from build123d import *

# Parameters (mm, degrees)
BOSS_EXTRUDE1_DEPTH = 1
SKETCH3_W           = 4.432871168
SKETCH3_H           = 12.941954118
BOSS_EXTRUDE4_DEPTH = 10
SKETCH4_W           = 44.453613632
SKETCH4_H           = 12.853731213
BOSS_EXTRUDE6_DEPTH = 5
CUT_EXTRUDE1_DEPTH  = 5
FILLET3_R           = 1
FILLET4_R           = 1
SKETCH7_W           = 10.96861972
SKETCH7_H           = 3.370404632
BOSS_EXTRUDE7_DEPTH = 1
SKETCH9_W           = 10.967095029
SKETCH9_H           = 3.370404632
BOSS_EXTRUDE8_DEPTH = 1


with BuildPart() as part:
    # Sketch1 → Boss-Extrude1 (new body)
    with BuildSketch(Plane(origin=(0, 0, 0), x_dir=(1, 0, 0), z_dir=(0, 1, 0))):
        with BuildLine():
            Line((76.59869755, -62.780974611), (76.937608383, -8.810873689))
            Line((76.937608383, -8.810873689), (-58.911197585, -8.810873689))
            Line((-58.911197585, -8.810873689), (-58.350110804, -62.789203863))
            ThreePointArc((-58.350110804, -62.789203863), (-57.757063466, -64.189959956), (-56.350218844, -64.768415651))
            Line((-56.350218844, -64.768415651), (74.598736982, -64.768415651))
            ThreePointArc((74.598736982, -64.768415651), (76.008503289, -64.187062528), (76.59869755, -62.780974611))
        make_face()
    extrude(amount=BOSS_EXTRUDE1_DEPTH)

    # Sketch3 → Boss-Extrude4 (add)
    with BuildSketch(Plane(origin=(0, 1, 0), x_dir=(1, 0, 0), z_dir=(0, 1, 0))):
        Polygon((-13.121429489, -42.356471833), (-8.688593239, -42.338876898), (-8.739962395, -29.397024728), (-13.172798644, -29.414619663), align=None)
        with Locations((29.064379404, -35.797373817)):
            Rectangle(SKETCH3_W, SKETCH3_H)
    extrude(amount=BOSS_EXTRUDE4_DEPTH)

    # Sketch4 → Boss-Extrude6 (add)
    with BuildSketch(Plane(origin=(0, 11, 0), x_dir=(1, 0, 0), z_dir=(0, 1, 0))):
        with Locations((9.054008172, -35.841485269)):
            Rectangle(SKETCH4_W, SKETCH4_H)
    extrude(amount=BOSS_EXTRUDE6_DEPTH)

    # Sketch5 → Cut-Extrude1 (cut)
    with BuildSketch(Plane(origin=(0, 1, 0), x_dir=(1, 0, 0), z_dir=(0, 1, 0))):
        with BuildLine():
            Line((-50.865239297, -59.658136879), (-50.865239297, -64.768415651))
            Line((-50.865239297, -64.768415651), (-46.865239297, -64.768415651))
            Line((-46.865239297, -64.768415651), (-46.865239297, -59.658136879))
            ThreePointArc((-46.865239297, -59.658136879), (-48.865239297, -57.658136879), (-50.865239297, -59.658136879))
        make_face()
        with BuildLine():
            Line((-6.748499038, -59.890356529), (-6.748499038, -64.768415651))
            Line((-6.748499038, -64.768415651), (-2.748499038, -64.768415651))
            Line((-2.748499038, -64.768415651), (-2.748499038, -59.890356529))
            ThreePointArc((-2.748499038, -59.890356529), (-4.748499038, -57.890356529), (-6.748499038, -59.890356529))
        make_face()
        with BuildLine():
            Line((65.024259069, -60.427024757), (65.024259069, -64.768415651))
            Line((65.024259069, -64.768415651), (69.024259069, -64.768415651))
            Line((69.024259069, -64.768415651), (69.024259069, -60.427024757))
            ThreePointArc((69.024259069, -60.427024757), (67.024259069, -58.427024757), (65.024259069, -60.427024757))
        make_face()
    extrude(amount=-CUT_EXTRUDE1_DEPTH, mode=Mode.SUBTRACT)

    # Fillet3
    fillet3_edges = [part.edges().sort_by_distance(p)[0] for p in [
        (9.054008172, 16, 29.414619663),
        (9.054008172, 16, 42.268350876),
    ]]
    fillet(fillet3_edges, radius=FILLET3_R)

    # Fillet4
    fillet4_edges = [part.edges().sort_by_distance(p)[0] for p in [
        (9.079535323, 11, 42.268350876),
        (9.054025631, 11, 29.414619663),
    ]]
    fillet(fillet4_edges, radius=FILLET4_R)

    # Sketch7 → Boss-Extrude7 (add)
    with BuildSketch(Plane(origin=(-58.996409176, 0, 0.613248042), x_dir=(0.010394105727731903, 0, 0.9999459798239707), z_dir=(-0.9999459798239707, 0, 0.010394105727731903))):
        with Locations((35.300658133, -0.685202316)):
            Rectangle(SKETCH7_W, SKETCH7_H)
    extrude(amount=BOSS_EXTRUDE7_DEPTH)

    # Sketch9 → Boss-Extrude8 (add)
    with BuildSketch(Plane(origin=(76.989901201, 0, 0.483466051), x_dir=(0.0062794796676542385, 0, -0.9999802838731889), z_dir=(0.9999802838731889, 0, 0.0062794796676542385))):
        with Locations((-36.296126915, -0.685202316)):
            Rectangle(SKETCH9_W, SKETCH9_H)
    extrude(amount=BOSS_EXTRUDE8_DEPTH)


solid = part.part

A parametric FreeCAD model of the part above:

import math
import FreeCAD as App
import Part
import Sketcher

V = App.Vector
Q = App.Units.Quantity


def edges_at(feature, points):
    """Names of the edges that pass closest to the given points."""
    edges = feature.Shape.Edges
    near = lambda p: min(range(len(edges)), key=lambda i: edges[i].distToShape(Part.Vertex(*p))[0])
    return sorted({f"Edge{near(p) + 1}" for p in points})

doc = App.newDocument("Part")
body = doc.addObject("PartDesign::Body", "Body")

# Sketch on XZ plane
sketch1 = body.newObject("Sketcher::SketchObject", "Sketch")
sketch1.AttachmentSupport = (doc.getObject("XZ_Plane"), [""])
sketch1.MapMode = "FlatFace"
sketch1.addGeometry(Part.LineSegment(V(76.6, 62.8, 0), V(76.9, 8.8, 0)), False)
sketch1.addGeometry(Part.LineSegment(V(76.9, 8.8, 0), V(-58.9, 8.8, 0)), False)
sketch1.addGeometry(Part.LineSegment(V(-58.9, 8.8, 0), V(-58.4, 62.8, 0)), False)
sketch1.addGeometry(Part.ArcOfCircle(Part.Circle(V(-56.4, 62.8, 0), V(0, 0, 1), 2), math.radians(90), math.radians(179)), False)
sketch1.addGeometry(Part.LineSegment(V(-56.4, 64.8, 0), V(74.6, 64.8, 0)), False)
sketch1.addGeometry(Part.ArcOfCircle(Part.Circle(V(74.6, 62.8, 0), V(0, 0, 1), 2), math.radians(0), math.radians(90)), False)
sketch1.addConstraint(Sketcher.Constraint("Coincident", 0, 2, 1, 1))
sketch1.addConstraint(Sketcher.Constraint("Coincident", 1, 2, 2, 1))
sketch1.addConstraint(Sketcher.Constraint("Tangent", 2, 2, 3, 2))
sketch1.addConstraint(Sketcher.Constraint("Tangent", 3, 1, 4, 1))
sketch1.addConstraint(Sketcher.Constraint("Tangent", 4, 2, 5, 2))
sketch1.addConstraint(Sketcher.Constraint("Tangent", 5, 1, 0, 1))
sketch1.addConstraint(Sketcher.Constraint("Horizontal", 1))
sketch1.addConstraint(Sketcher.Constraint("Horizontal", 4))
sketch1.addConstraint(Sketcher.Constraint("Equal", 3, 5))
sketch1.addConstraint(Sketcher.Constraint("Radius", 3, Q("2 mm")))
sketch1.addConstraint(Sketcher.Constraint("DistanceY", 0, 2, 5, 1, Q("53.970101 mm")))
sketch1.addConstraint(Sketcher.Constraint("DistanceX", 1, 2, 1, 1, Q("135.848806 mm")))
sketch1.addConstraint(Sketcher.Constraint("DistanceX", 4, 1, 4, 2, Q("130.948956 mm")))
sketch1.addConstraint(Sketcher.Constraint("DistanceX", 3, 3, -1, 1, Q("56.350219 mm")))
sketch1.addConstraint(Sketcher.Constraint("DistanceX", -1, 1, 0, 2, Q("76.937608 mm")))
sketch1.addConstraint(Sketcher.Constraint("DistanceY", -1, 1, 3, 3, Q("62.768416 mm")))
pad1 = body.newObject("PartDesign::Pad", "Pad")
pad1.Profile = sketch1
pad1.Length = 1
pad1.Reversed = True

# Sketch on XZ plane
sketch2 = body.newObject("Sketcher::SketchObject", "Sketch001")
sketch2.AttachmentSupport = (doc.getObject("XZ_Plane"), [""])
sketch2.MapMode = "FlatFace"
sketch2.AttachmentOffset = App.Placement(V(0, 0, -1), App.Rotation())
sketch2.addGeometry(Part.LineSegment(V(-13.1, 42.4, 0), V(-8.7, 42.3, 0)), False)
sketch2.addGeometry(Part.LineSegment(V(-8.7, 42.3, 0), V(-8.7, 29.4, 0)), False)
sketch2.addGeometry(Part.LineSegment(V(-8.7, 29.4, 0), V(-13.2, 29.4, 0)), False)
sketch2.addGeometry(Part.LineSegment(V(-13.2, 29.4, 0), V(-13.1, 42.4, 0)), False)
sketch2.addGeometry(Part.LineSegment(V(26.8, 29.3, 0), V(26.8, 42.3, 0)), False)
sketch2.addGeometry(Part.LineSegment(V(26.8, 42.3, 0), V(31.3, 42.3, 0)), False)
sketch2.addGeometry(Part.LineSegment(V(31.3, 42.3, 0), V(31.3, 29.3, 0)), False)
sketch2.addGeometry(Part.LineSegment(V(31.3, 29.3, 0), V(26.8, 29.3, 0)), False)
sketch2.addConstraint(Sketcher.Constraint("Coincident", 0, 2, 1, 1))
sketch2.addConstraint(Sketcher.Constraint("Coincident", 1, 2, 2, 1))
sketch2.addConstraint(Sketcher.Constraint("Coincident", 2, 2, 3, 1))
sketch2.addConstraint(Sketcher.Constraint("Coincident", 3, 2, 0, 1))
sketch2.addConstraint(Sketcher.Constraint("Coincident", 4, 2, 5, 1))
sketch2.addConstraint(Sketcher.Constraint("Coincident", 5, 2, 6, 1))
sketch2.addConstraint(Sketcher.Constraint("Coincident", 6, 2, 7, 1))
sketch2.addConstraint(Sketcher.Constraint("Coincident", 7, 2, 4, 1))
sketch2.addConstraint(Sketcher.Constraint("Vertical", 4))
sketch2.addConstraint(Sketcher.Constraint("Horizontal", 5))
sketch2.addConstraint(Sketcher.Constraint("Vertical", 6))
sketch2.addConstraint(Sketcher.Constraint("Horizontal", 7))
sketch2.addConstraint(Sketcher.Constraint("Perpendicular", 0, 1))
sketch2.addConstraint(Sketcher.Constraint("Perpendicular", 1, 2))
sketch2.addConstraint(Sketcher.Constraint("Perpendicular", 2, 3))
sketch2.addConstraint(Sketcher.Constraint("DistanceX", 5, 1, 5, 2, Q("4.432871 mm")))
sketch2.addConstraint(Sketcher.Constraint("DistanceX", 2, 2, -1, 1, Q("13.172799 mm")))
sketch2.addConstraint(Sketcher.Constraint("Distance", 0, Q("4.432871 mm")))
sketch2.addConstraint(Sketcher.Constraint("DistanceY", 4, 1, 4, 2, Q("12.941954 mm")))
sketch2.addConstraint(Sketcher.Constraint("DistanceY", -1, 1, 2, 2, Q("29.41462 mm")))
sketch2.addConstraint(Sketcher.Constraint("DistanceX", 3, 2, -1, 1, Q("13.121429 mm")))
sketch2.addConstraint(Sketcher.Constraint("DistanceY", -1, 1, 3, 2, Q("42.356472 mm")))
sketch2.addConstraint(Sketcher.Constraint("DistanceY", -1, 1, 4, 2, Q("42.268351 mm")))
sketch2.addConstraint(Sketcher.Constraint("DistanceX", 0, 2, 5, 2, Q("39.969408 mm")))
pad2 = body.newObject("PartDesign::Pad", "Pad001")
pad2.Profile = sketch2
pad2.Length = 10
pad2.Reversed = True

# Sketch on XZ plane
sketch3 = body.newObject("Sketcher::SketchObject", "Sketch002")
sketch3.AttachmentSupport = (doc.getObject("XZ_Plane"), [""])
sketch3.MapMode = "FlatFace"
sketch3.AttachmentOffset = App.Placement(V(0, 0, -11), App.Rotation())
sketch3.addGeometry(Part.LineSegment(V(-13, 29, 0), V(-13, 42, 0)), False)
sketch3.addGeometry(Part.LineSegment(V(-13, 42, 0), V(31, 42, 0)), False)
sketch3.addGeometry(Part.LineSegment(V(31, 42, 0), V(31, 29, 0)), False)
sketch3.addGeometry(Part.LineSegment(V(31, 29, 0), V(-13, 29, 0)), False)
sketch3.addConstraint(Sketcher.Constraint("Coincident", 0, 2, 1, 1))
sketch3.addConstraint(Sketcher.Constraint("Coincident", 1, 2, 2, 1))
sketch3.addConstraint(Sketcher.Constraint("Coincident", 2, 2, 3, 1))
sketch3.addConstraint(Sketcher.Constraint("Coincident", 3, 2, 0, 1))
sketch3.addConstraint(Sketcher.Constraint("Vertical", 0))
sketch3.addConstraint(Sketcher.Constraint("Horizontal", 1))
sketch3.addConstraint(Sketcher.Constraint("Vertical", 2))
sketch3.addConstraint(Sketcher.Constraint("Horizontal", 3))
sketch3.addConstraint(Sketcher.Constraint("DistanceY", 0, 1, 0, 2, Q("12.853731 mm")))
sketch3.addConstraint(Sketcher.Constraint("DistanceX", 0, 2, -1, 1, Q("13.172799 mm")))
sketch3.addConstraint(Sketcher.Constraint("DistanceX", 1, 1, 1, 2, Q("44.453614 mm")))
sketch3.addConstraint(Sketcher.Constraint("DistanceY", -1, 1, 0, 2, Q("42.268351 mm")))
pad3 = body.newObject("PartDesign::Pad", "Pad002")
pad3.Profile = sketch3
pad3.Length = 5
pad3.Reversed = True

# Sketch on XZ plane
sketch4 = body.newObject("Sketcher::SketchObject", "Sketch003")
sketch4.AttachmentSupport = (doc.getObject("XZ_Plane"), [""])
sketch4.MapMode = "FlatFace"
sketch4.AttachmentOffset = App.Placement(V(0, 0, -1), App.Rotation())
sketch4.addGeometry(Part.LineSegment(V(-50.9, 59.7, 0), V(-50.9, 64.8, 0)), False)
sketch4.addGeometry(Part.LineSegment(V(-50.9, 64.8, 0), V(-46.9, 64.8, 0)), False)
sketch4.addGeometry(Part.LineSegment(V(-46.9, 64.8, 0), V(-46.9, 59.7, 0)), False)
sketch4.addGeometry(Part.ArcOfCircle(Part.Circle(V(-48.9, 59.7, 0), V(0, 0, 1), 2), math.radians(180), math.radians(360)), False)
sketch4.addGeometry(Part.LineSegment(V(-6.7, 59.9, 0), V(-6.7, 64.8, 0)), False)
sketch4.addGeometry(Part.LineSegment(V(-6.7, 64.8, 0), V(-2.7, 64.8, 0)), False)
sketch4.addGeometry(Part.LineSegment(V(-2.7, 64.8, 0), V(-2.7, 59.9, 0)), False)
sketch4.addGeometry(Part.ArcOfCircle(Part.Circle(V(-4.7, 59.9, 0), V(0, 0, 1), 2), math.radians(180), math.radians(360)), False)
sketch4.addGeometry(Part.LineSegment(V(65, 60.4, 0), V(65, 64.8, 0)), False)
sketch4.addGeometry(Part.LineSegment(V(65, 64.8, 0), V(69, 64.8, 0)), False)
sketch4.addGeometry(Part.LineSegment(V(69, 64.8, 0), V(69, 60.4, 0)), False)
sketch4.addGeometry(Part.ArcOfCircle(Part.Circle(V(67, 60.4, 0), V(0, 0, 1), 2), math.radians(180), math.radians(360)), False)
sketch4.addConstraint(Sketcher.Constraint("Coincident", 0, 2, 1, 1))
sketch4.addConstraint(Sketcher.Constraint("Coincident", 1, 2, 2, 1))
sketch4.addConstraint(Sketcher.Constraint("Tangent", 2, 2, 3, 2))
sketch4.addConstraint(Sketcher.Constraint("Tangent", 3, 1, 0, 1))
sketch4.addConstraint(Sketcher.Constraint("Coincident", 4, 2, 5, 1))
sketch4.addConstraint(Sketcher.Constraint("Coincident", 5, 2, 6, 1))
sketch4.addConstraint(Sketcher.Constraint("Tangent", 6, 2, 7, 2))
sketch4.addConstraint(Sketcher.Constraint("Tangent", 7, 1, 4, 1))
sketch4.addConstraint(Sketcher.Constraint("Coincident", 8, 2, 9, 1))
sketch4.addConstraint(Sketcher.Constraint("Coincident", 9, 2, 10, 1))
sketch4.addConstraint(Sketcher.Constraint("Tangent", 10, 2, 11, 2))
sketch4.addConstraint(Sketcher.Constraint("Tangent", 11, 1, 8, 1))
sketch4.addConstraint(Sketcher.Constraint("Vertical", 0))
sketch4.addConstraint(Sketcher.Constraint("Horizontal", 1))
sketch4.addConstraint(Sketcher.Constraint("Vertical", 2))
sketch4.addConstraint(Sketcher.Constraint("Vertical", 4))
sketch4.addConstraint(Sketcher.Constraint("Horizontal", 5))
sketch4.addConstraint(Sketcher.Constraint("Vertical", 6))
sketch4.addConstraint(Sketcher.Constraint("Vertical", 8))
sketch4.addConstraint(Sketcher.Constraint("Horizontal", 9))
sketch4.addConstraint(Sketcher.Constraint("Vertical", 10))
sketch4.addConstraint(Sketcher.Constraint("Equal", 3, 7))
sketch4.addConstraint(Sketcher.Constraint("Equal", 7, 11))
sketch4.addConstraint(Sketcher.Constraint("Horizontal", 1, 2, 4, 2))
sketch4.addConstraint(Sketcher.Constraint("Horizontal", 5, 2, 8, 2))
sketch4.addConstraint(Sketcher.Constraint("Radius", 3, Q("2 mm")))
sketch4.addConstraint(Sketcher.Constraint("DistanceY", 0, 1, 0, 2, Q("5.110279 mm")))
sketch4.addConstraint(Sketcher.Constraint("DistanceY", 4, 1, 4, 2, Q("4.878059 mm")))
sketch4.addConstraint(Sketcher.Constraint("DistanceY", 8, 1, 8, 2, Q("4.341391 mm")))
sketch4.addConstraint(Sketcher.Constraint("DistanceX", 7, 3, -1, 1, Q("4.748499 mm")))
sketch4.addConstraint(Sketcher.Constraint("DistanceX", 3, 3, 11, 3, Q("115.889498 mm")))
sketch4.addConstraint(Sketcher.Constraint("DistanceX", 3, 3, -1, 1, Q("48.865239 mm")))
sketch4.addConstraint(Sketcher.Constraint("DistanceY", -1, 1, 3, 3, Q("59.658137 mm")))
pocket1 = body.newObject("PartDesign::Pocket", "Pocket")
pocket1.Profile = sketch4
pocket1.Length = 5
pocket1.Reversed = True
doc.recompute()

fillet = body.newObject("PartDesign::Fillet", "Fillet")
fillet.Base = (pocket1, edges_at(pocket1, [(9.054, 16, 29.415), (9.054, 16, 42.268)]))
fillet.Radius = 1
doc.recompute()

fillet2 = body.newObject("PartDesign::Fillet", "Fillet001")
fillet2.Base = (fillet, edges_at(fillet, [(9.08, 11, 42.268), (9.054, 11, 29.415)]))
fillet2.Radius = 1

# Sketch on an angled plane
sketch5 = body.newObject("Sketcher::SketchObject", "Sketch004")
sketch5.Placement = App.Placement(V(-58.996409, 0, 0.613248), App.Rotation(V(0.010394106, 0, 0.99994598), V(0, 1, 0), V(-0.99994598, 0, 0.010394106), "ZXY"))
sketch5.addGeometry(Part.LineSegment(V(29.8, 1, 0), V(29.8, -2.4, 0)), False)
sketch5.addGeometry(Part.LineSegment(V(29.8, -2.4, 0), V(40.8, -2.4, 0)), False)
sketch5.addGeometry(Part.LineSegment(V(40.8, -2.4, 0), V(40.8, 1, 0)), False)
sketch5.addGeometry(Part.LineSegment(V(40.8, 1, 0), V(29.8, 1, 0)), False)
sketch5.addConstraint(Sketcher.Constraint("Coincident", 0, 2, 1, 1))
sketch5.addConstraint(Sketcher.Constraint("Coincident", 1, 2, 2, 1))
sketch5.addConstraint(Sketcher.Constraint("Coincident", 2, 2, 3, 1))
sketch5.addConstraint(Sketcher.Constraint("Coincident", 3, 2, 0, 1))
sketch5.addConstraint(Sketcher.Constraint("Vertical", 0))
sketch5.addConstraint(Sketcher.Constraint("Horizontal", 1))
sketch5.addConstraint(Sketcher.Constraint("Vertical", 2))
sketch5.addConstraint(Sketcher.Constraint("Horizontal", 3))
sketch5.addConstraint(Sketcher.Constraint("DistanceY", -1, 1, 2, 2, Q("1 mm")))
sketch5.addConstraint(Sketcher.Constraint("DistanceX", 1, 1, 1, 2, Q("10.96862 mm")))
sketch5.addConstraint(Sketcher.Constraint("DistanceY", 0, 2, 0, 1, Q("3.370405 mm")))
sketch5.addConstraint(Sketcher.Constraint("DistanceX", -1, 1, 0, 2, Q("29.816348 mm")))
pad4 = body.newObject("PartDesign::Pad", "Pad003")
pad4.Profile = sketch5
pad4.Length = 1

# Sketch on an angled plane
sketch6 = body.newObject("Sketcher::SketchObject", "Sketch005")
sketch6.Placement = App.Placement(V(76.989901, 0, 0.483466), App.Rotation(V(0.00627948, 0, -0.999980284), V(0, 1, 0), V(0.999980284, 0, 0.00627948), "ZXY"))
sketch6.addGeometry(Part.LineSegment(V(-41.8, 1, 0), V(-41.8, -2.4, 0)), False)
sketch6.addGeometry(Part.LineSegment(V(-41.8, -2.4, 0), V(-30.8, -2.4, 0)), False)
sketch6.addGeometry(Part.LineSegment(V(-30.8, -2.4, 0), V(-30.8, 1, 0)), False)
sketch6.addGeometry(Part.LineSegment(V(-30.8, 1, 0), V(-41.8, 1, 0)), False)
sketch6.addConstraint(Sketcher.Constraint("Coincident", 0, 2, 1, 1))
sketch6.addConstraint(Sketcher.Constraint("Coincident", 1, 2, 2, 1))
sketch6.addConstraint(Sketcher.Constraint("Coincident", 2, 2, 3, 1))
sketch6.addConstraint(Sketcher.Constraint("Coincident", 3, 2, 0, 1))
sketch6.addConstraint(Sketcher.Constraint("Vertical", 0))
sketch6.addConstraint(Sketcher.Constraint("Horizontal", 1))
sketch6.addConstraint(Sketcher.Constraint("Vertical", 2))
sketch6.addConstraint(Sketcher.Constraint("Horizontal", 3))
sketch6.addConstraint(Sketcher.Constraint("DistanceY", -1, 1, 2, 2, Q("1 mm")))
sketch6.addConstraint(Sketcher.Constraint("DistanceX", 1, 1, 1, 2, Q("10.967095 mm")))
sketch6.addConstraint(Sketcher.Constraint("DistanceY", 0, 2, 0, 1, Q("3.370405 mm")))
sketch6.addConstraint(Sketcher.Constraint("DistanceX", 1, 2, -1, 1, Q("30.812579 mm")))
pad5 = body.newObject("PartDesign::Pad", "Pad004")
pad5.Profile = sketch6
pad5.Length = 1

doc.recompute()
